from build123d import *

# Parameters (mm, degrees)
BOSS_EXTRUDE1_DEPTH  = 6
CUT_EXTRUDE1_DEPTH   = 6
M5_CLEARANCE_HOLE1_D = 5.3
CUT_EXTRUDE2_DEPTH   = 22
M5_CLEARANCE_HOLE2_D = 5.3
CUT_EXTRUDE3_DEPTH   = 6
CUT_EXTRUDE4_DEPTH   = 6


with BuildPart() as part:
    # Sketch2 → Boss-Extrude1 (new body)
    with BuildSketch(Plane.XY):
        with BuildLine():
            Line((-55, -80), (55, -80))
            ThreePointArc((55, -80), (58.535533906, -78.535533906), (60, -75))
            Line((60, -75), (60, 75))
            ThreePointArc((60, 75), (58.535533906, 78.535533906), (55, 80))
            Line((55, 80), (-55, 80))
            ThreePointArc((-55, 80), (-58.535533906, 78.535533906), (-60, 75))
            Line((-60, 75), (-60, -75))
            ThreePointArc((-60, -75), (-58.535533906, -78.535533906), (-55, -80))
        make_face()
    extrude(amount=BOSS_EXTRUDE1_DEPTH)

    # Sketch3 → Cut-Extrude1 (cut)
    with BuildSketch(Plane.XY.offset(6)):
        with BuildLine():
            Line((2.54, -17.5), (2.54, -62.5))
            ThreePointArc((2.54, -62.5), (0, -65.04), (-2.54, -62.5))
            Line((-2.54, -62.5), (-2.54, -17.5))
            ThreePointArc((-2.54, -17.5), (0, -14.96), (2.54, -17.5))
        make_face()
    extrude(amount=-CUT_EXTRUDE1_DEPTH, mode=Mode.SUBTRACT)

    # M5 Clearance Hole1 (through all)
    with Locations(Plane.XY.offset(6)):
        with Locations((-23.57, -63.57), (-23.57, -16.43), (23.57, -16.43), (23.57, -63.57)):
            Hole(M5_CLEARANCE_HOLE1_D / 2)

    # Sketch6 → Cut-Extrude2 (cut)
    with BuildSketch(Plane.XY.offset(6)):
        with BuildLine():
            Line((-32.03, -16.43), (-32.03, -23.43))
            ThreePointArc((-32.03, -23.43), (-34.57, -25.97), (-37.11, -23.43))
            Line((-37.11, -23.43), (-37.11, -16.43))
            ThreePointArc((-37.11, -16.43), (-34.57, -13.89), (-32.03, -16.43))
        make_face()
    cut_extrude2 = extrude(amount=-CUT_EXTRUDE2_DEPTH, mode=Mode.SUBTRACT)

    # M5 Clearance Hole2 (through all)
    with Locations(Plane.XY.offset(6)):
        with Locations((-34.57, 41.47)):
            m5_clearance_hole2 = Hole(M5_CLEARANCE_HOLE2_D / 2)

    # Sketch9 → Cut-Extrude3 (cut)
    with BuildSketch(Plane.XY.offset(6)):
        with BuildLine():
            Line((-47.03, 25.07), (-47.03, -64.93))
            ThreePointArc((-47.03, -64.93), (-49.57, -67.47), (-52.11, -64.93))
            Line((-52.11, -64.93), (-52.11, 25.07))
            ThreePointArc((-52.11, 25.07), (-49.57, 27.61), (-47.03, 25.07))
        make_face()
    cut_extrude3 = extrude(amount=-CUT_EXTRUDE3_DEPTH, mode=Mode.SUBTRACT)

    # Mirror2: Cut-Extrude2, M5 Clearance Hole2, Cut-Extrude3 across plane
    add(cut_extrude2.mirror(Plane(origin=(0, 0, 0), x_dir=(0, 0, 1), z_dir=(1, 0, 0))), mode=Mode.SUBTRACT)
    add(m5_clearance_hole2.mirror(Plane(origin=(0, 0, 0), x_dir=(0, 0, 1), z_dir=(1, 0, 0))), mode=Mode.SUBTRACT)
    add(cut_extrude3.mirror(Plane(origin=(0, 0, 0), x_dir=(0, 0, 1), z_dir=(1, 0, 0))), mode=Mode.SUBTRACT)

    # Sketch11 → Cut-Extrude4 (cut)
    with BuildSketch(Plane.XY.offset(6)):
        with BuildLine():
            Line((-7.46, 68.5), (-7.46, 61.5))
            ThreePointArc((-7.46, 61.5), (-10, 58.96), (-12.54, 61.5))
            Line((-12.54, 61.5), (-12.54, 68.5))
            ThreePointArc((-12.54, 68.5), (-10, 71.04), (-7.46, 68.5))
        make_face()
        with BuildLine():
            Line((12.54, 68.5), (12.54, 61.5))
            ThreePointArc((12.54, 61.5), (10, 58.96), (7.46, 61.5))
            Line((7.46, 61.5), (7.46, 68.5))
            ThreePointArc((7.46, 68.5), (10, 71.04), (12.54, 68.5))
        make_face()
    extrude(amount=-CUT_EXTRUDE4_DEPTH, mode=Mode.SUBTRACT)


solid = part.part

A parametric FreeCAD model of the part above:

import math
import FreeCAD as App
import Part
import Sketcher

doc = App.newDocument("Part")
body = doc.addObject("PartDesign::Body", "Body")

sketch1 = doc.addObject("Sketcher::SketchObject", "Sketch")
body.addObject(sketch1)
sketch1.AttachmentSupport = (doc.XY_Plane, [""])
sketch1.MapMode = "FlatFace"
sketch1.addGeometry(Part.LineSegment(App.Vector(-55, -80, 0), App.Vector(55, -80, 0)), False)
sketch1.addGeometry(Part.ArcOfCircle(Part.Circle(App.Vector(55, -75, 0), App.Vector(0, 0, 1), 5), math.radians(-90), math.radians(0)), False)
sketch1.addGeometry(Part.LineSegment(App.Vector(60, -75, 0), App.Vector(60, 75, 0)), False)
sketch1.addGeometry(Part.ArcOfCircle(Part.Circle(App.Vector(55, 75, 0), App.Vector(0, 0, 1), 5), math.radians(0), math.radians(90)), False)
sketch1.addGeometry(Part.LineSegment(App.Vector(55, 80, 0), App.Vector(-55, 80, 0)), False)
sketch1.addGeometry(Part.ArcOfCircle(Part.Circle(App.Vector(-55, 75, 0), App.Vector(0, 0, 1), 5), math.radians(90), math.radians(180)), False)
sketch1.addGeometry(Part.LineSegment(App.Vector(-60, 75, 0), App.Vector(-60, -75, 0)), False)
sketch1.addGeometry(Part.ArcOfCircle(Part.Circle(App.Vector(-55, -75, 0), App.Vector(0, 0, 1), 5), math.radians(180), math.radians(270)), False)
sketch1.addConstraint(Sketcher.Constraint("Tangent", 0, 2, 1, 1))
sketch1.addConstraint(Sketcher.Constraint("Tangent", 1, 2, 2, 1))
sketch1.addConstraint(Sketcher.Constraint("Tangent", 2, 2, 3, 1))
sketch1.addConstraint(Sketcher.Constraint("Tangent", 3, 2, 4, 1))
sketch1.addConstraint(Sketcher.Constraint("Tangent", 4, 2, 5, 1))
sketch1.addConstraint(Sketcher.Constraint("Tangent", 5, 2, 6, 1))
sketch1.addConstraint(Sketcher.Constraint("Tangent", 6, 2, 7, 1))
sketch1.addConstraint(Sketcher.Constraint("Tangent", 7, 2, 0, 1))
sketch1.addConstraint(Sketcher.Constraint("Horizontal", 0))
sketch1.addConstraint(Sketcher.Constraint("Vertical", 2))
sketch1.addConstraint(Sketcher.Constraint("Horizontal", 4))
sketch1.addConstraint(Sketcher.Constraint("Vertical", 6))
sketch1.addConstraint(Sketcher.Constraint("Equal", 1, 3))
sketch1.addConstraint(Sketcher.Constraint("Equal", 3, 5))
sketch1.addConstraint(Sketcher.Constraint("Equal", 5, 7))
sketch1.addConstraint(Sketcher.Constraint("Symmetric", 1, 3, 5, 3, -1, 1))
sketch1.addConstraint(Sketcher.Constraint("Radius", 1, 5.0))
sketch1.addConstraint(Sketcher.Constraint("DistanceX", 0, 1, 0, 2, 110.0))
sketch1.addConstraint(Sketcher.Constraint("DistanceY", 2, 1, 2, 2, 150.0))
pad1 = doc.addObject("PartDesign::Pad", "Pad")
body.addObject(pad1)
pad1.Profile = sketch1
pad1.Length = 6

sketch2 = doc.addObject("Sketcher::SketchObject", "Sketch001")
body.addObject(sketch2)
sketch2.AttachmentSupport = (doc.XY_Plane, [""])
sketch2.MapMode = "FlatFace"
sketch2.AttachmentOffset = App.Placement(App.Vector(0, 0, 6), App.Rotation())
sketch2.addGeometry(Part.LineSegment(App.Vector(2.5, -62.5, 0), App.Vector(2.5, -17.5, 0)), False)
sketch2.addGeometry(Part.ArcOfCircle(Part.Circle(App.Vector(0, -17.5, 0), App.Vector(0, 0, 1), 2.5), math.radians(0), math.radians(180)), False)
sketch2.addGeometry(Part.LineSegment(App.Vector(-2.5, -17.5, 0), App.Vector(-2.5, -62.5, 0)), False)
sketch2.addGeometry(Part.ArcOfCircle(Part.Circle(App.Vector(0, -62.5, 0), App.Vector(0, 0, 1), 2.5), math.radians(180), math.radians(360)), False)
sketch2.addConstraint(Sketcher.Constraint("Tangent", 0, 2, 1, 1))
sketch2.addConstraint(Sketcher.Constraint("Tangent", 1, 2, 2, 1))
sketch2.addConstraint(Sketcher.Constraint("Tangent", 2, 2, 3, 1))
sketch2.addConstraint(Sketcher.Constraint("Tangent", 3, 2, 0, 1))
sketch2.addConstraint(Sketcher.Constraint("Vertical", 0))
sketch2.addConstraint(Sketcher.Constraint("Vertical", 2))
sketch2.addConstraint(Sketcher.Constraint("PointOnObject", 1, 3, -2))
sketch2.addConstraint(Sketcher.Constraint("DistanceY", 0, 1, 0, 2, 45.0))
sketch2.addConstraint(Sketcher.Constraint("Radius", 1, 2.54))
sketch2.addConstraint(Sketcher.Constraint("DistanceY", 1, 3, -1, 1, 17.5))
pocket1 = doc.addObject("PartDesign::Pocket", "Pocket")
body.addObject(pocket1)
pocket1.Profile = sketch2
pocket1.Length = 6

sketch3 = doc.addObject("Sketcher::SketchObject", "Sketch002")
body.addObject(sketch3)
sketch3.AttachmentSupport = (doc.XY_Plane, [""])
sketch3.MapMode = "FlatFace"
sketch3.AttachmentOffset = App.Placement(App.Vector(0, 0, 6), App.Rotation())
sketch3.addGeometry(Part.Circle(App.Vector(-23.6, -63.6, 0), App.Vector(0, 0, 1), 2.6), False)
sketch3.addGeometry(Part.Circle(App.Vector(-23.6, -16.4, 0), App.Vector(0, 0, 1), 2.6), False)
sketch3.addGeometry(Part.Circle(App.Vector(23.6, -16.4, 0), App.Vector(0, 0, 1), 2.6), False)
sketch3.addGeometry(Part.Circle(App.Vector(23.6, -63.6, 0), App.Vector(0, 0, 1), 2.6), False)
sketch3.addConstraint(Sketcher.Constraint("Equal", 0, 1))
sketch3.addConstraint(Sketcher.Constraint("Equal", 1, 2))
sketch3.addConstraint(Sketcher.Constraint("Equal", 2, 3))
sketch3.addConstraint(Sketcher.Constraint("Symmetric", 1, 3, 2, 3, -2))
sketch3.addConstraint(Sketcher.Constraint("Symmetric", 0, 3, 3, 3, -2))
sketch3.addConstraint(Sketcher.Constraint("Vertical", 0, 3, 1, 3))
sketch3.addConstraint(Sketcher.Constraint("Diameter", 0, 5.3))
sketch3.addConstraint(Sketcher.Constraint("DistanceX", 0, 3, -1, 1, 23.57))
sketch3.addConstraint(Sketcher.Constraint("DistanceY", 0, 3, -1, 1, 63.57))
sketch3.addConstraint(Sketcher.Constraint("DistanceY", 1, 3, -1, 1, 16.43))
doc.recompute()
hole = doc.addObject("PartDesign::Hole", "Hole")
body.addObject(hole)
hole.Profile = sketch3
hole.ThreadType = "None"
hole.Diameter = 5.3
hole.DepthType = "ThroughAll"

sketch4 = doc.addObject("Sketcher::SketchObject", "Sketch003")
body.addObject(sketch4)
sketch4.AttachmentSupport = (doc.XY_Plane, [""])
sketch4.MapMode = "FlatFace"
sketch4.AttachmentOffset = App.Placement(App.Vector(0, 0, 6), App.Rotation())
sketch4.addGeometry(Part.LineSegment(App.Vector(-32, -23.4, 0), App.Vector(-32, -16.4, 0)), False)
sketch4.addGeometry(Part.ArcOfCircle(Part.Circle(App.Vector(-34.6, -16.4, 0), App.Vector(0, 0, 1), 2.5), math.radians(0), math.radians(180)), False)
sketch4.addGeometry(Part.LineSegment(App.Vector(-37.1, -16.4, 0), App.Vector(-37.1, -23.4, 0)), False)
sketch4.addGeometry(Part.ArcOfCircle(Part.Circle(App.Vector(-34.6, -23.4, 0), App.Vector(0, 0, 1), 2.5), math.radians(180), math.radians(360)), False)
sketch4.addConstraint(Sketcher.Constraint("Tangent", 0, 2, 1, 1))
sketch4.addConstraint(Sketcher.Constraint("Tangent", 1, 2, 2, 1))
sketch4.addConstraint(Sketcher.Constraint("Tangent", 2, 2, 3, 1))
sketch4.addConstraint(Sketcher.Constraint("Tangent", 3, 2, 0, 1))
sketch4.addConstraint(Sketcher.Constraint("Vertical", 0))
sketch4.addConstraint(Sketcher.Constraint("Vertical", 2))
sketch4.addConstraint(Sketcher.Constraint("DistanceY", 0, 1, 0, 2, 7.0))
sketch4.addConstraint(Sketcher.Constraint("Radius", 1, 2.54))
sketch4.addConstraint(Sketcher.Constraint("DistanceX", 1, 3, -1, 1, 34.57))
sketch4.addConstraint(Sketcher.Constraint("DistanceY", 1, 3, -1, 1, 16.43))
pocket2 = doc.addObject("PartDesign::Pocket", "Pocket001")
body.addObject(pocket2)
pocket2.Profile = sketch4
pocket2.Length = 22

sketch5 = doc.addObject("Sketcher::SketchObject", "Sketch004")
body.addObject(sketch5)
sketch5.AttachmentSupport = (doc.XY_Plane, [""])
sketch5.MapMode = "FlatFace"
sketch5.AttachmentOffset = App.Placement(App.Vector(0, 0, 6), App.Rotation())
sketch5.addGeometry(Part.Circle(App.Vector(-34.6, 41.5, 0), App.Vector(0, 0, 1), 2.6), False)
sketch5.addConstraint(Sketcher.Constraint("Diameter", 0, 5.3))
sketch5.addConstraint(Sketcher.Constraint("DistanceX", 0, 3, -1, 1, 34.57))
sketch5.addConstraint(Sketcher.Constraint("DistanceY", -1, 1, 0, 3, 41.47))
doc.recompute()
hole2 = doc.addObject("PartDesign::Hole", "Hole001")
body.addObject(hole2)
hole2.Profile = sketch5
hole2.ThreadType = "None"
hole2.Diameter = 5.3
hole2.DepthType = "ThroughAll"

sketch6 = doc.addObject("Sketcher::SketchObject", "Sketch005")
body.addObject(sketch6)
sketch6.AttachmentSupport = (doc.XY_Plane, [""])
sketch6.MapMode = "FlatFace"
sketch6.AttachmentOffset = App.Placement(App.Vector(0, 0, 6), App.Rotation())
sketch6.addGeometry(Part.LineSegment(App.Vector(-47, -64.9, 0), App.Vector(-47, 25.1, 0)), False)
sketch6.addGeometry(Part.ArcOfCircle(Part.Circle(App.Vector(-49.6, 25.1, 0), App.Vector(0, 0, 1), 2.5), math.radians(0), math.radians(180)), False)
sketch6.addGeometry(Part.LineSegment(App.Vector(-52.1, 25.1, 0), App.Vector(-52.1, -64.9, 0)), False)
sketch6.addGeometry(Part.ArcOfCircle(Part.Circle(App.Vector(-49.6, -64.9, 0), App.Vector(0, 0, 1), 2.5), math.radians(180), math.radians(360)), False)
sketch6.addConstraint(Sketcher.Constraint("Tangent", 0, 2, 1, 1))
sketch6.addConstraint(Sketcher.Constraint("Tangent", 1, 2, 2, 1))
sketch6.addConstraint(Sketcher.Constraint("Tangent", 2, 2, 3, 1))
sketch6.addConstraint(Sketcher.Constraint("Tangent", 3, 2, 0, 1))
sketch6.addConstraint(Sketcher.Constraint("Vertical", 0))
sketch6.addConstraint(Sketcher.Constraint("Vertical", 2))
sketch6.addConstraint(Sketcher.Constraint("DistanceY", 0, 1, 0, 2, 90.0))
sketch6.addConstraint(Sketcher.Constraint("Radius", 1, 2.54))
sketch6.addConstraint(Sketcher.Constraint("DistanceX", 1, 3, -1, 1, 49.57))
sketch6.addConstraint(Sketcher.Constraint("DistanceY", -1, 1, 1, 3, 25.07))
pocket3 = doc.addObject("PartDesign::Pocket", "Pocket002")
body.addObject(pocket3)
pocket3.Profile = sketch6
pocket3.Length = 6
doc.recompute()

mirrored = doc.addObject("PartDesign::Mirrored", "Mirrored")
body.addObject(mirrored)
mirrored.Originals = [pocket2, hole2, pocket3]
mirrored.MirrorPlane = (doc.YZ_Plane, [""])
body.Tip = mirrored

sketch7 = doc.addObject("Sketcher::SketchObject", "Sketch006")
body.addObject(sketch7)
sketch7.AttachmentSupport = (doc.XY_Plane, [""])
sketch7.MapMode = "FlatFace"
sketch7.AttachmentOffset = App.Placement(App.Vector(0, 0, 6), App.Rotation())
sketch7.addGeometry(Part.LineSegment(App.Vector(-7.5, 61.5, 0), App.Vector(-7.5, 68.5, 0)), False)
sketch7.addGeometry(Part.ArcOfCircle(Part.Circle(App.Vector(-10, 68.5, 0), App.Vector(0, 0, 1), 2.5), math.radians(0), math.radians(180)), False)
sketch7.addGeometry(Part.LineSegment(App.Vector(-12.5, 68.5, 0), App.Vector(-12.5, 61.5, 0)), False)
sketch7.addGeometry(Part.ArcOfCircle(Part.Circle(App.Vector(-10, 61.5, 0), App.Vector(0, 0, 1), 2.5), math.radians(180), math.radians(360)), False)
sketch7.addGeometry(Part.LineSegment(App.Vector(12.5, 61.5, 0), App.Vector(12.5, 68.5, 0)), False)
sketch7.addGeometry(Part.ArcOfCircle(Part.Circle(App.Vector(10, 68.5, 0), App.Vector(0, 0, 1), 2.5), math.radians(0), math.radians(180)), False)
sketch7.addGeometry(Part.LineSegment(App.Vector(7.5, 68.5, 0), App.Vector(7.5, 61.5, 0)), False)
sketch7.addGeometry(Part.ArcOfCircle(Part.Circle(App.Vector(10, 61.5, 0), App.Vector(0, 0, 1), 2.5), math.radians(180), math.radians(360)), False)
sketch7.addConstraint(Sketcher.Constraint("Tangent", 0, 2, 1, 1))
sketch7.addConstraint(Sketcher.Constraint("Tangent", 1, 2, 2, 1))
sketch7.addConstraint(Sketcher.Constraint("Tangent", 2, 2, 3, 1))
sketch7.addConstraint(Sketcher.Constraint("Tangent", 3, 2, 0, 1))
sketch7.addConstraint(Sketcher.Constraint("Tangent", 4, 2, 5, 1))
sketch7.addConstraint(Sketcher.Constraint("Tangent", 5, 2, 6, 1))
sketch7.addConstraint(Sketcher.Constraint("Tangent", 6, 2, 7, 1))
sketch7.addConstraint(Sketcher.Constraint("Tangent", 7, 2, 4, 1))
sketch7.addConstraint(Sketcher.Constraint("Vertical", 0))
sketch7.addConstraint(Sketcher.Constraint("Vertical", 2))
sketch7.addConstraint(Sketcher.Constraint("Vertical", 4))
sketch7.addConstraint(Sketcher.Constraint("Vertical", 6))
sketch7.addConstraint(Sketcher.Constraint("Equal", 3, 5))
sketch7.addConstraint(Sketcher.Constraint("Symmetric", 1, 3, 5, 3, -2))
sketch7.addConstraint(Sketcher.Constraint("Horizontal", 3, 3, 7, 3))
sketch7.addConstraint(Sketcher.Constraint("DistanceY", 0, 1, 0, 2, 7.0))
sketch7.addConstraint(Sketcher.Constraint("Radius", 1, 2.54))
sketch7.addConstraint(Sketcher.Constraint("DistanceX", 1, 3, -1, 1, 10.0))
sketch7.addConstraint(Sketcher.Constraint("DistanceY", -1, 1, 1, 3, 68.5))
pocket4 = doc.addObject("PartDesign::Pocket", "Pocket003")
body.addObject(pocket4)
pocket4.Profile = sketch7
pocket4.Length = 6

doc.recompute()
